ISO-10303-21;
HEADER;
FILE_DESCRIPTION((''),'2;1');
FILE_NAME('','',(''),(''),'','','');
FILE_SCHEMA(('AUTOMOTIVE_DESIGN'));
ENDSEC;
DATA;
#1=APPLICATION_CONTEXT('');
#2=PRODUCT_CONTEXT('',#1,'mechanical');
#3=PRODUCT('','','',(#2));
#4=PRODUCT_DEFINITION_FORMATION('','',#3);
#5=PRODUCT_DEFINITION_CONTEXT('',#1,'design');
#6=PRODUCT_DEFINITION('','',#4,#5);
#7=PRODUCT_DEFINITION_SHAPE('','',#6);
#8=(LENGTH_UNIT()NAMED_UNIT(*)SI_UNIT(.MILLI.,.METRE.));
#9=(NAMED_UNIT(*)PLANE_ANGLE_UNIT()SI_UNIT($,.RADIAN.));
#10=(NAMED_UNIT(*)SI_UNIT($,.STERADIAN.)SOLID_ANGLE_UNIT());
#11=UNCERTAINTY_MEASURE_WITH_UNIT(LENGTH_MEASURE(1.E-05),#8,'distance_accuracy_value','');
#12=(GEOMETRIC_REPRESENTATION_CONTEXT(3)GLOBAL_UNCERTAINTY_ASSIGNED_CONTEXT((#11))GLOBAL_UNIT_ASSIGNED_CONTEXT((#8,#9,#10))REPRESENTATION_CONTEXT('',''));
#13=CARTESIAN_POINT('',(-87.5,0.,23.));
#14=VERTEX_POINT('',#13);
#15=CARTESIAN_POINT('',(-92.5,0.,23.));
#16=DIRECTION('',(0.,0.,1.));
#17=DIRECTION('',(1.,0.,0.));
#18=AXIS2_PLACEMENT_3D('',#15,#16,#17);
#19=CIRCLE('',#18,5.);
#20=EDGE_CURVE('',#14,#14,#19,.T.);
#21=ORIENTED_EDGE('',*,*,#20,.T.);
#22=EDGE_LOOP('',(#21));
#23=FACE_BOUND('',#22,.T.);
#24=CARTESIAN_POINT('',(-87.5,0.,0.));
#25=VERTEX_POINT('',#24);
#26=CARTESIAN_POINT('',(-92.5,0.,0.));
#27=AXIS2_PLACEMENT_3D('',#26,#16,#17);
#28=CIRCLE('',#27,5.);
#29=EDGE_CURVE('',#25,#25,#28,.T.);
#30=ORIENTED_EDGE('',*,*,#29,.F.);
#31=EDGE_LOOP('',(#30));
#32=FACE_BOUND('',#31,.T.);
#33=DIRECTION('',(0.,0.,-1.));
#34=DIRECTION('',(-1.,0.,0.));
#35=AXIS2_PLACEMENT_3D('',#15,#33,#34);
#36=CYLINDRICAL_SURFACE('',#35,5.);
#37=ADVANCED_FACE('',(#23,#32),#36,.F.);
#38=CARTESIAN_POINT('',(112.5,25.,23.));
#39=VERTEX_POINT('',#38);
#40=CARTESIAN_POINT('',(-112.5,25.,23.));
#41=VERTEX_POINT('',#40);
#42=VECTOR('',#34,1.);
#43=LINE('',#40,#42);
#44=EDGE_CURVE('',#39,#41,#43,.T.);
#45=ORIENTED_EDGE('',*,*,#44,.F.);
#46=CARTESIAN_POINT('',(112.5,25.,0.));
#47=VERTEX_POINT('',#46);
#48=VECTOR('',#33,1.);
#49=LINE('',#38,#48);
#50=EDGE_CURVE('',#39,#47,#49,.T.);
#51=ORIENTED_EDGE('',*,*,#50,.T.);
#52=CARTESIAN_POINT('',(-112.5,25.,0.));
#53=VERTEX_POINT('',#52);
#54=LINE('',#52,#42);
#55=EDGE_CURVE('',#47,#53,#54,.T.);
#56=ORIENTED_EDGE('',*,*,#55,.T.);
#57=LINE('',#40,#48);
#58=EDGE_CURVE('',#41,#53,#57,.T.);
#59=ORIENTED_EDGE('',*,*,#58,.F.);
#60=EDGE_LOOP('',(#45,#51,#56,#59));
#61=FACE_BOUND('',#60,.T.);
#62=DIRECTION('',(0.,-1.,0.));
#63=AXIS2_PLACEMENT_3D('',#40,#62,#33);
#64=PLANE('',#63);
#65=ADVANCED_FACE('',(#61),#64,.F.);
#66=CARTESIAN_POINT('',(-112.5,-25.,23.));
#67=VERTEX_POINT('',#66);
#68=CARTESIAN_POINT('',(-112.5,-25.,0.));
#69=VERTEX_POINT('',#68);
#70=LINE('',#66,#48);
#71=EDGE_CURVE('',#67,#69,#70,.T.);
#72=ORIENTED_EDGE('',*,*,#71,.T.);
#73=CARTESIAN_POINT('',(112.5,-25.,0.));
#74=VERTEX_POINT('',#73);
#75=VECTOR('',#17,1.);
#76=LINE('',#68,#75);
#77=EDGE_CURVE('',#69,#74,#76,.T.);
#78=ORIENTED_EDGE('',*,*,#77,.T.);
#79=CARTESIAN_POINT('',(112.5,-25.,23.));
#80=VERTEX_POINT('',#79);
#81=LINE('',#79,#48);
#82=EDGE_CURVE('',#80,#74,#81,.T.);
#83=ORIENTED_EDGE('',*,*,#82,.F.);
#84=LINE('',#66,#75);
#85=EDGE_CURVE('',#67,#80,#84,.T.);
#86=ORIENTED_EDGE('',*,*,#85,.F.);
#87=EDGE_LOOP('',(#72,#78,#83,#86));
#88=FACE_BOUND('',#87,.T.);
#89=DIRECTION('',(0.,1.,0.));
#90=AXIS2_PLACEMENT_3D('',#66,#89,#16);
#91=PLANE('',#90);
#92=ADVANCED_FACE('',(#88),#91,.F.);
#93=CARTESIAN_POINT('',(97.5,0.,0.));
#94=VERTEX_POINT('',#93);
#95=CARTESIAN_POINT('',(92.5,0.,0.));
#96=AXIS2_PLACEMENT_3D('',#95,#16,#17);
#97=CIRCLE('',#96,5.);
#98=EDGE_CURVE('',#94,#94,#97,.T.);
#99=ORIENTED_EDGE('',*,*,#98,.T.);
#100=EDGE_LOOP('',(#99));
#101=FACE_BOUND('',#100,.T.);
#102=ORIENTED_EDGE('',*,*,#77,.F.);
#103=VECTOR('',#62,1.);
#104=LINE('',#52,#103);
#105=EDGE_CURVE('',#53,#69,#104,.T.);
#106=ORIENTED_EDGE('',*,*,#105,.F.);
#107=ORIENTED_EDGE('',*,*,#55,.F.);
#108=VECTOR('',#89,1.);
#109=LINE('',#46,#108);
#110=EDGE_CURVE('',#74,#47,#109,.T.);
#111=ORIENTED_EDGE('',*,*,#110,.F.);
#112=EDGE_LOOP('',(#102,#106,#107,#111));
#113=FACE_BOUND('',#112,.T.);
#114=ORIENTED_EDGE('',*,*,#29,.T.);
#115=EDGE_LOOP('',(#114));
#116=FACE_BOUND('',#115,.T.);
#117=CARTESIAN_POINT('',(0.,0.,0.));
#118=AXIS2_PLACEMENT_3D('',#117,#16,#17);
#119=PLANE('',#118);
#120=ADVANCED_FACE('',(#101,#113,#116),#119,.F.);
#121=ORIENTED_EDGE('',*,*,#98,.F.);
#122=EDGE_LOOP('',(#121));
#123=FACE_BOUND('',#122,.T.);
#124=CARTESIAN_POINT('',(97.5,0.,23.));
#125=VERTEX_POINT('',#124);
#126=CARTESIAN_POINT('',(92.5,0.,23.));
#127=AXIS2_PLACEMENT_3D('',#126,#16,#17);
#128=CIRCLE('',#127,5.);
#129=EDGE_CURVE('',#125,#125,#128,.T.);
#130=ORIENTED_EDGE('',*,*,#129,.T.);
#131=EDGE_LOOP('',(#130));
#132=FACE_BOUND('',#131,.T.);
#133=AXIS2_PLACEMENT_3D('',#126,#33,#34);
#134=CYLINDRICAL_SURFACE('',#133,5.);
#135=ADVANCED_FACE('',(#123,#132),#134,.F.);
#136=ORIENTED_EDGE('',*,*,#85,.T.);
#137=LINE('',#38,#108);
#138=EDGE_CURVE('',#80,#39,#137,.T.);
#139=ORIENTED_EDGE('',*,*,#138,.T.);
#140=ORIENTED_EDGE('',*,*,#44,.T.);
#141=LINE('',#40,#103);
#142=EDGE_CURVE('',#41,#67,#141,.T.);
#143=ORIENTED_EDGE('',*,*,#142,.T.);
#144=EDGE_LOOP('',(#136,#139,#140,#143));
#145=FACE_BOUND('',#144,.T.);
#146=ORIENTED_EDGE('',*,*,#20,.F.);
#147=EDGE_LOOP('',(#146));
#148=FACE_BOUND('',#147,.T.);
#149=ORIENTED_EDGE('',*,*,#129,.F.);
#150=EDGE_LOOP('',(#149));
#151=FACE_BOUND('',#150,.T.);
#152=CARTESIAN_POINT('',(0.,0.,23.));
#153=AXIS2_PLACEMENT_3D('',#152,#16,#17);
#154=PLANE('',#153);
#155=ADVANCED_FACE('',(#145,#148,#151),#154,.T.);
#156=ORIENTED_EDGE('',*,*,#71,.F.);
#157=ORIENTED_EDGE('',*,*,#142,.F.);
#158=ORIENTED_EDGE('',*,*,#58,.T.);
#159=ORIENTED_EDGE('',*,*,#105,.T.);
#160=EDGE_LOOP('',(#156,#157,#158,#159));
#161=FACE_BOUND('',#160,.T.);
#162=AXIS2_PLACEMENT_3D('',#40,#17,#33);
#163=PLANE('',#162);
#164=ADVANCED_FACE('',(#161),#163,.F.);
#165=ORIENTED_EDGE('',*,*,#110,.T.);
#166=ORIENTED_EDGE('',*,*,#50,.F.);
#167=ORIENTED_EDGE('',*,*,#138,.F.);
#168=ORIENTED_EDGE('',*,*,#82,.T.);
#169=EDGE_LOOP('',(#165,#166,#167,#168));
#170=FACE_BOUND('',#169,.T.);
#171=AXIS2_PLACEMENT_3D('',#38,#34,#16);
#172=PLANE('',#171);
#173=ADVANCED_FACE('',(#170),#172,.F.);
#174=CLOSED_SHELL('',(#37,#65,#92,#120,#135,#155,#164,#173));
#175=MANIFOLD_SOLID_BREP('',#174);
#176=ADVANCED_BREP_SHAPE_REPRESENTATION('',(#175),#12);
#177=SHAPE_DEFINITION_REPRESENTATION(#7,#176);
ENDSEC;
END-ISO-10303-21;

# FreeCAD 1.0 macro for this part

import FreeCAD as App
import Part
import Sketcher
Q = App.Units.Quantity

doc = App.newDocument("Part")
params = doc.addObject("Spreadsheet::Sheet", "Params")
for row, (alias, value) in enumerate([
    ("sketch1_diameter", "10 mm"),
    ("sketch1_width", "225 mm"),
    ("sketch1_height", "50 mm"),
    ("pad1_length", "23 mm"),
], start=1):
    params.set(f"A{row}", alias)
    params.set(f"B{row}", "=" + value)
    params.setAlias(f"B{row}", alias)

body = doc.addObject("PartDesign::Body", "Body")

sketch1 = body.newObject("Sketcher::SketchObject", "Sketch")
sketch1.AttachmentSupport = (doc.getObject("XY_Plane"), [""])
sketch1.MapMode = "FlatFace"
sketch1.addGeometry(Part.LineSegment(App.Vector(-112, 25, 0), App.Vector(-112, -25, 0)), False)
sketch1.addGeometry(Part.LineSegment(App.Vector(-112, -25, 0), App.Vector(112, -25, 0)), False)
sketch1.addGeometry(Part.LineSegment(App.Vector(112, -25, 0), App.Vector(112, 25, 0)), False)
sketch1.addGeometry(Part.LineSegment(App.Vector(112, 25, 0), App.Vector(-112, 25, 0)), False)
sketch1.addGeometry(Part.Circle(App.Vector(-92, 0, 0), App.Vector(0, 0, 1), 5), False)
sketch1.addGeometry(Part.Circle(App.Vector(92, 0, 0), App.Vector(0, 0, 1), 5), False)
sketch1.addConstraint(Sketcher.Constraint("Coincident", 0, 2, 1, 1))
sketch1.addConstraint(Sketcher.Constraint("Coincident", 1, 2, 2, 1))
sketch1.addConstraint(Sketcher.Constraint("Coincident", 2, 2, 3, 1))
sketch1.addConstraint(Sketcher.Constraint("Coincident", 3, 2, 0, 1))
sketch1.addConstraint(Sketcher.Constraint("Vertical", 0))
sketch1.addConstraint(Sketcher.Constraint("Horizontal", 1))
sketch1.addConstraint(Sketcher.Constraint("Vertical", 2))
sketch1.addConstraint(Sketcher.Constraint("Horizontal", 3))
sketch1.addConstraint(Sketcher.Constraint("Equal", 4, 5))
sketch1.addConstraint(Sketcher.Constraint("Symmetric", 4, 3, 5, 3, -1, 1))
sketch1.addConstraint(Sketcher.Constraint("Symmetric", 0, 2, 2, 2, -1, 1))
sketch1.addConstraint(Sketcher.Constraint("PointOnObject", 4, 3, -1))
sketch1.addConstraint(Sketcher.Constraint("Diameter", 4, Q("10 mm")))
sketch1.addConstraint(Sketcher.Constraint("DistanceX", 1, 1, 1, 2, Q("225 mm")))
sketch1.addConstraint(Sketcher.Constraint("DistanceY", 0, 2, 0, 1, Q("50 mm")))
sketch1.addConstraint(Sketcher.Constraint("DistanceX", 4, 3, 5, 3, Q("185 mm")))
sketch1.setExpression("Constraints[12]", "Params.sketch1_diameter")
sketch1.setExpression("Constraints[13]", "Params.sketch1_width")
sketch1.setExpression("Constraints[14]", "Params.sketch1_height")
pad1 = body.newObject("PartDesign::Pad", "Pad")
pad1.Profile = sketch1
pad1.setExpression("Length", "Params.pad1_length")

doc.recompute()
